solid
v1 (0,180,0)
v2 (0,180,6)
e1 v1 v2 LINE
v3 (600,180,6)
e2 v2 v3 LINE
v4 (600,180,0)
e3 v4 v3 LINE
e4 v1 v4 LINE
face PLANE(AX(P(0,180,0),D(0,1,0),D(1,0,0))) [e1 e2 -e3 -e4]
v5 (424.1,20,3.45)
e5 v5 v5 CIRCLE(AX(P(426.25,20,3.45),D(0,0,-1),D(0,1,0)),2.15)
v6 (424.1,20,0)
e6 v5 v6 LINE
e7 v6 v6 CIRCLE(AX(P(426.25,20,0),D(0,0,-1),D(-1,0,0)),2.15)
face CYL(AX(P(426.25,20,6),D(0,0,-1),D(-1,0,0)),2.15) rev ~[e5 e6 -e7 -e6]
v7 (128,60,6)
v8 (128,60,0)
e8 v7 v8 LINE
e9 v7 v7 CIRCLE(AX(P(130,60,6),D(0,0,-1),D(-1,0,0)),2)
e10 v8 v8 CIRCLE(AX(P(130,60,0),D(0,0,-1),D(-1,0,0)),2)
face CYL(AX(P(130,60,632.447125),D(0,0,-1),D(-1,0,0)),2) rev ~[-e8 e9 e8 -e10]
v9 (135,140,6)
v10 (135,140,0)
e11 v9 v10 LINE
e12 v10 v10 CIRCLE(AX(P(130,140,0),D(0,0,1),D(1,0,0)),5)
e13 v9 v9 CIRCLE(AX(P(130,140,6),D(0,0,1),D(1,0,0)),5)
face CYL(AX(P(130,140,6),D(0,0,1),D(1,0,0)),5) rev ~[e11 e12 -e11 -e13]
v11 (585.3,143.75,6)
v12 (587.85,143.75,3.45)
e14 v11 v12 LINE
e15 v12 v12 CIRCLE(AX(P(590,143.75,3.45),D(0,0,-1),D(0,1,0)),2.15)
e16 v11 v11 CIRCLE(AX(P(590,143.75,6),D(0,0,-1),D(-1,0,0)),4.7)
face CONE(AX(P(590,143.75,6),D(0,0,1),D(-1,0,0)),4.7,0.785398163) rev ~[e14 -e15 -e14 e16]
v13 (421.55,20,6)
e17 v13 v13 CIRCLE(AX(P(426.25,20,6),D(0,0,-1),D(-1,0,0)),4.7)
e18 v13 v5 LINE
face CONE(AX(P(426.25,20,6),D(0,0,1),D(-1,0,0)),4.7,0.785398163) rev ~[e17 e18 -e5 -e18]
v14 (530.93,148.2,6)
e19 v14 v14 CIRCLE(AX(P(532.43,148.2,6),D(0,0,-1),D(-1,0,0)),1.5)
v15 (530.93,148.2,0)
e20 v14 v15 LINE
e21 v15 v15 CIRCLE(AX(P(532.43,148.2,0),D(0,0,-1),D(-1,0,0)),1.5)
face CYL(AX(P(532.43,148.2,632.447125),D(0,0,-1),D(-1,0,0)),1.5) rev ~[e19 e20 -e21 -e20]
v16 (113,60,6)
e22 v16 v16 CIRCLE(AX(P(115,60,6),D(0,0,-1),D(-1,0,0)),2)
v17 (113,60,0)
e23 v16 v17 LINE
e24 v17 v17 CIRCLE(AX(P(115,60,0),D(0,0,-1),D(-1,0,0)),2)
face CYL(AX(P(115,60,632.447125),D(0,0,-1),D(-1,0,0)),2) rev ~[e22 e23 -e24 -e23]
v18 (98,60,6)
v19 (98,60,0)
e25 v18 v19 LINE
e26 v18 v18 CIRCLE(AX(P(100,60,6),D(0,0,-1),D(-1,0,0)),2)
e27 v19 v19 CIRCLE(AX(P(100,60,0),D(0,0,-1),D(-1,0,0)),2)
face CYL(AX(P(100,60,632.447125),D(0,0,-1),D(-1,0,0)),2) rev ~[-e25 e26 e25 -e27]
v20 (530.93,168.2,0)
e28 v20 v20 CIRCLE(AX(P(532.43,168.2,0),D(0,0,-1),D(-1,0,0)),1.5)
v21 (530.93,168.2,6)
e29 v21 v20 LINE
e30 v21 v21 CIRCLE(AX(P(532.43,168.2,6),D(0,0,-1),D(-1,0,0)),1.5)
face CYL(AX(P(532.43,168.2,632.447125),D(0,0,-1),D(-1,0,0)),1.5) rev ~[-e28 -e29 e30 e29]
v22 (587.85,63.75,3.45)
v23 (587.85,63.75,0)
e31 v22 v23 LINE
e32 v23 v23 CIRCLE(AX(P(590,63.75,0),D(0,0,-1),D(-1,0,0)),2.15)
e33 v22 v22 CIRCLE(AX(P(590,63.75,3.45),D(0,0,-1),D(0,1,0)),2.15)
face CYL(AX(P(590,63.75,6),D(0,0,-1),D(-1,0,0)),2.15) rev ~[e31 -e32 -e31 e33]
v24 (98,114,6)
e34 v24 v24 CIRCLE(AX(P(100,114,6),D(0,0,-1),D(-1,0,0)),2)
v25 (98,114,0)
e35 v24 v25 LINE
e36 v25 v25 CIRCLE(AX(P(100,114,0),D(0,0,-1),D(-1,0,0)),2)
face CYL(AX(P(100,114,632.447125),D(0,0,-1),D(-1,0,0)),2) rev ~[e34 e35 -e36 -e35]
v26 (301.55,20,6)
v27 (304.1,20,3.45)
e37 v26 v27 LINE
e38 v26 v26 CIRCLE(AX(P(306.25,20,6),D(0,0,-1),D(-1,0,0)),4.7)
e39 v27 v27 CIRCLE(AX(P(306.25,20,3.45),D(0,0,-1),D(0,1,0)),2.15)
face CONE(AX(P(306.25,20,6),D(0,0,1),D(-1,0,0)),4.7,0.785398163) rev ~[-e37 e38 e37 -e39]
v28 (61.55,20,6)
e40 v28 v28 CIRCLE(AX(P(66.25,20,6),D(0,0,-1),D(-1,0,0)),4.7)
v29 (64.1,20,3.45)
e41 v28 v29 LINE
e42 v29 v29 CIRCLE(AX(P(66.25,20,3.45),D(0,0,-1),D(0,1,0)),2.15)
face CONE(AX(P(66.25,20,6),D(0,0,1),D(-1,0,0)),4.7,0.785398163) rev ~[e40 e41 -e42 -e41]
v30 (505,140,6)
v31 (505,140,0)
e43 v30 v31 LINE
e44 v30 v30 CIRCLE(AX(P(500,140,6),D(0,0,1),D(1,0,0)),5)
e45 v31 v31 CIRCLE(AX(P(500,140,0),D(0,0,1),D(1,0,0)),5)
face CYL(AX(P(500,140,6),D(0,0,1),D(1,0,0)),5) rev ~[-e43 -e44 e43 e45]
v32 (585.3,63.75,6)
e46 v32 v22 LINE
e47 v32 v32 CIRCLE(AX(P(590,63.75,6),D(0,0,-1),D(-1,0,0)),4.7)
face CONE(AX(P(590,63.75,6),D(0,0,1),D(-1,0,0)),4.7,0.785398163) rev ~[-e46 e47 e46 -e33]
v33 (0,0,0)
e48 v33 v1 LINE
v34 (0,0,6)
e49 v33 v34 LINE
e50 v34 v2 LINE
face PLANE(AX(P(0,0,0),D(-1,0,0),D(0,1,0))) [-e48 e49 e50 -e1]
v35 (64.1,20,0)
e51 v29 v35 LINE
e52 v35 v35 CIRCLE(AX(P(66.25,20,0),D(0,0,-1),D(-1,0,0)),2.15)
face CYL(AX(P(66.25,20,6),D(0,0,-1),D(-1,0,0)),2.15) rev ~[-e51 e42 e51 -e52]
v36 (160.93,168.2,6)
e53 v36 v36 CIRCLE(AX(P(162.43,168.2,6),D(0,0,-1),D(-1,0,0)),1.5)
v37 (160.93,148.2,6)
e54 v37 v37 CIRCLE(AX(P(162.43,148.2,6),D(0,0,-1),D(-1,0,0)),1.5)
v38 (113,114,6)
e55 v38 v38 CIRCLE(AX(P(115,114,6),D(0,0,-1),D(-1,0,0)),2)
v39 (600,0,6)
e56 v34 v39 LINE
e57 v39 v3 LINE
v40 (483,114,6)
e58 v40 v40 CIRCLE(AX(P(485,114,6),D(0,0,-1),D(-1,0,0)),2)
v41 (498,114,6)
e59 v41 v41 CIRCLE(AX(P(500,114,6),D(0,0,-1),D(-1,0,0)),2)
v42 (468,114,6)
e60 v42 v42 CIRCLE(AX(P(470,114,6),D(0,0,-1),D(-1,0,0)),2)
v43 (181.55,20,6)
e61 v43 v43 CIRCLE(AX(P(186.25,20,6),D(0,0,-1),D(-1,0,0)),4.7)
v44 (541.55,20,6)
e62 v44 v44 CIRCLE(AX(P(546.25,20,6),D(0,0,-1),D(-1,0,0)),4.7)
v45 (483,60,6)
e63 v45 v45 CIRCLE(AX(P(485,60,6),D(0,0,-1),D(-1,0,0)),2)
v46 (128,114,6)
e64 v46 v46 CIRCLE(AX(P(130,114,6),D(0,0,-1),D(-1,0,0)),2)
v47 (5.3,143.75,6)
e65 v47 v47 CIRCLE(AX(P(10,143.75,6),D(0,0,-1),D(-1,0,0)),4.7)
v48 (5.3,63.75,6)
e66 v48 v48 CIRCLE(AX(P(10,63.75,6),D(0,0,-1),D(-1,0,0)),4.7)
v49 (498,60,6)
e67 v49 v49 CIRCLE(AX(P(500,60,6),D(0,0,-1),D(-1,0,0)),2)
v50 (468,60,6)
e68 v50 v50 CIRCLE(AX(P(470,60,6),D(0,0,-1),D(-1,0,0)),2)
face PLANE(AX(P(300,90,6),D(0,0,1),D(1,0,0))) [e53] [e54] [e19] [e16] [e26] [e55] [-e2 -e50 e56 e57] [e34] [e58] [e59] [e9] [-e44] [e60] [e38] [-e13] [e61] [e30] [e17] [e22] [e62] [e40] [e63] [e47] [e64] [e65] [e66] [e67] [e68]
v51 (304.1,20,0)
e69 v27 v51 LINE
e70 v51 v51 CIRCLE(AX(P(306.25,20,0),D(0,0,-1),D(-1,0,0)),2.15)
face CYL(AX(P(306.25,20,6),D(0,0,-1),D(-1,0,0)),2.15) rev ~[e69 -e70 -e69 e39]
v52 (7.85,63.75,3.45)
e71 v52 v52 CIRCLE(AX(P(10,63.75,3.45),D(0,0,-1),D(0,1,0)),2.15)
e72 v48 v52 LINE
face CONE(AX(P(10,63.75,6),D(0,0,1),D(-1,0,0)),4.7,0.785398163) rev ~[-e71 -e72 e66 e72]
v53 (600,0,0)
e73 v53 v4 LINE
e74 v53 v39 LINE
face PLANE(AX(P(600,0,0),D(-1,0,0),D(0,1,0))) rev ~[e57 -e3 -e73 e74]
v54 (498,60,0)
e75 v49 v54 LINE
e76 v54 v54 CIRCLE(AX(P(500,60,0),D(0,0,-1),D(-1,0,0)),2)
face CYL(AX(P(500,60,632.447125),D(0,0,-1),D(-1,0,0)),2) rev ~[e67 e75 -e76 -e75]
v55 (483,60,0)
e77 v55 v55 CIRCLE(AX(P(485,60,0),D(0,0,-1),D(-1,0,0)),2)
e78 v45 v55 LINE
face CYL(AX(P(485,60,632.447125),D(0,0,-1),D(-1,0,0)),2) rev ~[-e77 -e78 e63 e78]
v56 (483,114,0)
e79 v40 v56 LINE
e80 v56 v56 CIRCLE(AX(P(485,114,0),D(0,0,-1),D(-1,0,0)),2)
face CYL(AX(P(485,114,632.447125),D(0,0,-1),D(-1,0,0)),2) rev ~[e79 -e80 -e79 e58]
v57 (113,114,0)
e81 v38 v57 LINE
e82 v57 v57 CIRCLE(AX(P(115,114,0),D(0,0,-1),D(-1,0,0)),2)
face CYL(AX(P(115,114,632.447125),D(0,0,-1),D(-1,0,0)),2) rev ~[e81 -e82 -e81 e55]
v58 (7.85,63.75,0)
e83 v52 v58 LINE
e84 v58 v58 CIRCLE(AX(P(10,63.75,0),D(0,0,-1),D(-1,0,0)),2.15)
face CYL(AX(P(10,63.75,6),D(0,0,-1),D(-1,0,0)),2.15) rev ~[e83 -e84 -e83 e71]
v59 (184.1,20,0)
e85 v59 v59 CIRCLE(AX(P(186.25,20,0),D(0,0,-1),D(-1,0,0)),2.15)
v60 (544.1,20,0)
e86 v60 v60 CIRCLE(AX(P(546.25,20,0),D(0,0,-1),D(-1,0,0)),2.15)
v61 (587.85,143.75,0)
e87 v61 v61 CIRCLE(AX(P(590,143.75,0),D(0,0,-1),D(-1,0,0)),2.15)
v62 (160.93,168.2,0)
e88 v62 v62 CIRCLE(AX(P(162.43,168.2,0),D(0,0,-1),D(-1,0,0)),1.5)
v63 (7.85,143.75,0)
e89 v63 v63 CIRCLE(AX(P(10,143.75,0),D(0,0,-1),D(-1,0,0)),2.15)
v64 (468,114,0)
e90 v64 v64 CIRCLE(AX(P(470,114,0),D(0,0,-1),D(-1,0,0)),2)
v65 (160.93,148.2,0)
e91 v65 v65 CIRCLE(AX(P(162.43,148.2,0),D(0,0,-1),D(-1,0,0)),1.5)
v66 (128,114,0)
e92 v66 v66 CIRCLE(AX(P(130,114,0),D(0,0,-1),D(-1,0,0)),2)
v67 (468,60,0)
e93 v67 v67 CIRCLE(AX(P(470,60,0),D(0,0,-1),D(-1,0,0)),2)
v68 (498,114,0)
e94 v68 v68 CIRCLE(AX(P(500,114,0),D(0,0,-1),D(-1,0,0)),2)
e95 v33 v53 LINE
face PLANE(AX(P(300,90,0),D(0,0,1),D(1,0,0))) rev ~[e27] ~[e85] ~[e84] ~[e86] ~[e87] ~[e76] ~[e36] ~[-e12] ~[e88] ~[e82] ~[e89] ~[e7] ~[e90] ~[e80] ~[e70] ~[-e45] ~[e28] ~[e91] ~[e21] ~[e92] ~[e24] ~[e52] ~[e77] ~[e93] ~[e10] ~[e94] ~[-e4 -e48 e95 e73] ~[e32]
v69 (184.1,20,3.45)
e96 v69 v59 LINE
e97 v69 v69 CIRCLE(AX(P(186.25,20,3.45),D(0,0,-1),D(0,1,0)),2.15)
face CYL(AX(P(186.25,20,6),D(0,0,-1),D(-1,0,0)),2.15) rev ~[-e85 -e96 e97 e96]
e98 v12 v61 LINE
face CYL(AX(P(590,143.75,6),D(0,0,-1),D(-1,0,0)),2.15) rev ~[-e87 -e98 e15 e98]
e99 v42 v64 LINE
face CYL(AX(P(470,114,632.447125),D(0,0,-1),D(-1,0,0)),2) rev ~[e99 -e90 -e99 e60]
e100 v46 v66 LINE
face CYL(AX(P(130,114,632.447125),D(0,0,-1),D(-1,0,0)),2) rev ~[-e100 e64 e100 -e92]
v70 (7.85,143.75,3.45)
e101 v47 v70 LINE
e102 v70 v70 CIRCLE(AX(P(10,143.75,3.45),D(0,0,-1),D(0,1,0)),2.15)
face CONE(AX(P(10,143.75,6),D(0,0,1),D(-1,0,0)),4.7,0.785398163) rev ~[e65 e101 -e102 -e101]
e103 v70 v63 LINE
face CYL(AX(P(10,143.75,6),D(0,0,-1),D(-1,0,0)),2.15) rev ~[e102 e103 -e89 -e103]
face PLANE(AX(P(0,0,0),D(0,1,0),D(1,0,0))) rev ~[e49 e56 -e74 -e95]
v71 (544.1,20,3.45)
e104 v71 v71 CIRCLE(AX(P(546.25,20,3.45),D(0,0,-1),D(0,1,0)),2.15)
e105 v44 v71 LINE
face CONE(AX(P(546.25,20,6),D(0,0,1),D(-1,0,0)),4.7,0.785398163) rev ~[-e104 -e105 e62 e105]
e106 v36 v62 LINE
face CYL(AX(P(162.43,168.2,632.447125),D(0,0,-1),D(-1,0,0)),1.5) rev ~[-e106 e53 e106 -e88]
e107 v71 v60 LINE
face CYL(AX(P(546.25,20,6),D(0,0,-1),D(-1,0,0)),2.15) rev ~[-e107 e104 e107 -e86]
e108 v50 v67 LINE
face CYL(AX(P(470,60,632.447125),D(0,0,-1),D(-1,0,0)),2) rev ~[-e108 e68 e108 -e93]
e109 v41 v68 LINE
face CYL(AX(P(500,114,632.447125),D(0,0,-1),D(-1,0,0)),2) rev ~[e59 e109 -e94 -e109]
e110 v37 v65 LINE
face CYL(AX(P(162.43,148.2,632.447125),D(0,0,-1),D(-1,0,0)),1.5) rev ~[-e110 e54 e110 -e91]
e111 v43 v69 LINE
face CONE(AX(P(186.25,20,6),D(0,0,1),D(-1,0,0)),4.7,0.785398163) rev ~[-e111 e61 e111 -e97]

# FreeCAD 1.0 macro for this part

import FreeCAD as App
import Part
import Sketcher
Q = App.Units.Quantity

doc = App.newDocument("Part")
body = doc.addObject("PartDesign::Body", "Body")

# Sketch on XY plane
sketch1 = body.newObject("Sketcher::SketchObject", "Sketch")
sketch1.AttachmentSupport = (doc.getObject("XY_Plane"), [""])
sketch1.MapMode = "FlatFace"
sketch1.addGeometry([
    Part.LineSegment(App.Vector(0, 180, 0), App.Vector(0, 0, 0)),
    Part.LineSegment(App.Vector(0, 0, 0), App.Vector(600, 0, 0)),
    Part.LineSegment(App.Vector(600, 0, 0), App.Vector(600, 180, 0)),
    Part.LineSegment(App.Vector(600, 180, 0), App.Vector(0, 180, 0)),
], False)
sketch1.addConstraint([
    Sketcher.Constraint("Coincident", 0, 2, 1, 1),
    Sketcher.Constraint("Coincident", 1, 2, 2, 1),
    Sketcher.Constraint("Coincident", 2, 2, 3, 1),
    Sketcher.Constraint("Coincident", 3, 2, 0, 1),
    Sketcher.Constraint("Vertical", 0),
    Sketcher.Constraint("Horizontal", 1),
    Sketcher.Constraint("Vertical", 2),
    Sketcher.Constraint("Horizontal", 3),
    Sketcher.Constraint("Coincident", 0, 2, -1, 1),
    Sketcher.Constraint("DistanceX", 1, 1, 1, 2, Q("600 mm")),
    Sketcher.Constraint("DistanceY", 0, 2, 0, 1, Q("180 mm")),
])
pad1 = body.newObject("PartDesign::Pad", "Pad")
pad1.Profile = sketch1
pad1.Length = 6

# Sketch on XY plane
sketch2 = body.newObject("Sketcher::SketchObject", "Sketch001")
sketch2.AttachmentSupport = (doc.getObject("XY_Plane"), [""])
sketch2.MapMode = "FlatFace"
sketch2.AttachmentOffset = App.Placement(App.Vector(0, 0, 6), App.Rotation())
sketch2.addGeometry([
    Part.Circle(App.Vector(546.25, 20, 0), App.Vector(0, 0, 1), 2.15),  # 0
    Part.Circle(App.Vector(590, 63.75, 0), App.Vector(0, 0, 1), 2.15),  # 1
    Part.Circle(App.Vector(426.25, 20, 0), App.Vector(0, 0, 1), 2.15),  # 2
    Part.Circle(App.Vector(306.25, 20, 0), App.Vector(0, 0, 1), 2.15),  # 3
    Part.Circle(App.Vector(186.25, 20, 0), App.Vector(0, 0, 1), 2.15),  # 4
    Part.Circle(App.Vector(66.25, 20, 0), App.Vector(0, 0, 1), 2.15),  # 5
    Part.Circle(App.Vector(10, 63.75, 0), App.Vector(0, 0, 1), 2.15),  # 6
    Part.Circle(App.Vector(590, 143.75, 0), App.Vector(0, 0, 1), 2.15),  # 7
    Part.Circle(App.Vector(10, 143.75, 0), App.Vector(0, 0, 1), 2.15),  # 8
], False)
sketch2.addConstraint([
    Sketcher.Constraint("Equal", 0, 1),
    Sketcher.Constraint("Equal", 1, 2),
    Sketcher.Constraint("Equal", 2, 3),
    Sketcher.Constraint("Equal", 3, 4),
    Sketcher.Constraint("Equal", 4, 5),
    Sketcher.Constraint("Equal", 5, 6),
    Sketcher.Constraint("Equal", 6, 7),
    Sketcher.Constraint("Equal", 7, 8),
    Sketcher.Constraint("Horizontal", 0, 3, 2, 3),
    Sketcher.Constraint("Horizontal", 2, 3, 3, 3),
    Sketcher.Constraint("Horizontal", 3, 3, 4, 3),
    Sketcher.Constraint("Horizontal", 4, 3, 5, 3),
    Sketcher.Constraint("Horizontal", 1, 3, 6, 3),
    Sketcher.Constraint("Horizontal", 7, 3, 8, 3),
    Sketcher.Constraint("Vertical", 1, 3, 7, 3),
    Sketcher.Constraint("Vertical", 6, 3, 8, 3),
    Sketcher.Constraint("Diameter", 0, Q("4.3 mm")),
    Sketcher.Constraint("DistanceY", -1, 1, 0, 3, Q("20 mm")),
    Sketcher.Constraint("DistanceX", -1, 1, 1, 3, Q("590 mm")),
    Sketcher.Constraint("DistanceX", -1, 1, 6, 3, Q("10 mm")),
    Sketcher.Constraint("DistanceX", 2, 3, 0, 3, Q("120 mm")),
    Sketcher.Constraint("DistanceX", 3, 3, 2, 3, Q("120 mm")),
    Sketcher.Constraint("DistanceX", 4, 3, 3, 3, Q("120 mm")),
    Sketcher.Constraint("DistanceX", 5, 3, 4, 3, Q("120 mm")),
    Sketcher.Constraint("DistanceY", 1, 3, 7, 3, Q("80 mm")),
    Sketcher.Constraint("DistanceX", -1, 1, 0, 3, Q("546.25 mm")),
    Sketcher.Constraint("DistanceY", -1, 1, 1, 3, Q("63.75 mm")),
])
doc.recompute()
hole = body.newObject("PartDesign::Hole", "Hole")
hole.Profile = sketch2
hole.ThreadType = "None"
hole.Diameter = 4.3
hole.DepthType = "ThroughAll"
hole.HoleCutType = "Countersink"
hole.HoleCutDiameter = 9.4
hole.HoleCutCountersinkAngle = 90

# Sketch on XY plane
sketch3 = body.newObject("Sketcher::SketchObject", "Sketch002")
sketch3.AttachmentSupport = (doc.getObject("XY_Plane"), [""])
sketch3.MapMode = "FlatFace"
sketch3.AttachmentOffset = App.Placement(App.Vector(0, 0, 6), App.Rotation())
sketch3.addGeometry([
    Part.Circle(App.Vector(500, 60, 0), App.Vector(0, 0, 1), 2),  # 0
    Part.Circle(App.Vector(485, 60, 0), App.Vector(0, 0, 1), 2),  # 1
    Part.Circle(App.Vector(470, 60, 0), App.Vector(0, 0, 1), 2),  # 2
    Part.Circle(App.Vector(485, 114, 0), App.Vector(0, 0, 1), 2),  # 3
    Part.Circle(App.Vector(470, 114, 0), App.Vector(0, 0, 1), 2),  # 4
    Part.Circle(App.Vector(500, 114, 0), App.Vector(0, 0, 1), 2),  # 5
    Part.Circle(App.Vector(130, 114, 0), App.Vector(0, 0, 1), 2),  # 6
    Part.Circle(App.Vector(115, 114, 0), App.Vector(0, 0, 1), 2),  # 7
    Part.Circle(App.Vector(100, 114, 0), App.Vector(0, 0, 1), 2),  # 8
    Part.Circle(App.Vector(130, 60, 0), App.Vector(0, 0, 1), 2),  # 9
    Part.Circle(App.Vector(115, 60, 0), App.Vector(0, 0, 1), 2),  # 10
    Part.Circle(App.Vector(100, 60, 0), App.Vector(0, 0, 1), 2),  # 11
], False)
sketch3.addConstraint([
    Sketcher.Constraint("Equal", 0, 1),
    Sketcher.Constraint("Equal", 1, 2),
    Sketcher.Constraint("Equal", 2, 3),
    Sketcher.Constraint("Equal", 3, 4),
    Sketcher.Constraint("Equal", 4, 5),
    Sketcher.Constraint("Equal", 5, 6),
    Sketcher.Constraint("Equal", 6, 7),
    Sketcher.Constraint("Equal", 7, 8),
    Sketcher.Constraint("Equal", 8, 9),
    Sketcher.Constraint("Equal", 9, 10),
    Sketcher.Constraint("Equal", 10, 11),
    Sketcher.Constraint("Horizontal", 0, 3, 1, 3),
    Sketcher.Constraint("Horizontal", 1, 3, 2, 3),
    Sketcher.Constraint("Horizontal", 3, 3, 4, 3),
    Sketcher.Constraint("Horizontal", 4, 3, 5, 3),
    Sketcher.Constraint("Horizontal", 5, 3, 6, 3),
    Sketcher.Constraint("Horizontal", 6, 3, 7, 3),
    Sketcher.Constraint("Horizontal", 7, 3, 8, 3),
    Sketcher.Constraint("Horizontal", 2, 3, 9, 3),
    Sketcher.Constraint("Horizontal", 9, 3, 10, 3),
    Sketcher.Constraint("Horizontal", 10, 3, 11, 3),
    Sketcher.Constraint("Vertical", 1, 3, 3, 3),
    Sketcher.Constraint("Vertical", 2, 3, 4, 3),
    Sketcher.Constraint("Vertical", 0, 3, 5, 3),
    Sketcher.Constraint("Vertical", 6, 3, 9, 3),
    Sketcher.Constraint("Vertical", 7, 3, 10, 3),
    Sketcher.Constraint("Vertical", 8, 3, 11, 3),
    Sketcher.Constraint("Diameter", 0, Q("4 mm")),
    Sketcher.Constraint("DistanceX", -1, 1, 0, 3, Q("500 mm")),
    Sketcher.Constraint("DistanceY", -1, 1, 0, 3, Q("60 mm")),
    Sketcher.Constraint("DistanceX", -1, 1, 1, 3, Q("485 mm")),
    Sketcher.Constraint("DistanceX", -1, 1, 2, 3, Q("470 mm")),
    Sketcher.Constraint("DistanceY", -1, 1, 3, 3, Q("114 mm")),
    Sketcher.Constraint("DistanceX", -1, 1, 6, 3, Q("130 mm")),
    Sketcher.Constraint("DistanceX", -1, 1, 7, 3, Q("115 mm")),
    Sketcher.Constraint("DistanceX", -1, 1, 8, 3, Q("100 mm")),
])
doc.recompute()
hole2 = body.newObject("PartDesign::Hole", "Hole001")
hole2.Profile = sketch3
hole2.ThreadType = "None"
hole2.Diameter = 4
hole2.DepthType = "ThroughAll"

# Sketch on XY plane
sketch4 = body.newObject("Sketcher::SketchObject", "Sketch003")
sketch4.AttachmentSupport = (doc.getObject("XY_Plane"), [""])
sketch4.MapMode = "FlatFace"
sketch4.AttachmentOffset = App.Placement(App.Vector(0, 0, 6), App.Rotation())
sketch4.addGeometry([
    Part.Circle(App.Vector(532.43, 148.2, 0), App.Vector(0, 0, 1), 1.5),
    Part.Circle(App.Vector(532.43, 168.2, 0), App.Vector(0, 0, 1), 1.5),
    Part.Circle(App.Vector(162.43, 148.2, 0), App.Vector(0, 0, 1), 1.5),
    Part.Circle(App.Vector(162.43, 168.2, 0), App.Vector(0, 0, 1), 1.5),
], False)
sketch4.addConstraint([
    Sketcher.Constraint("Equal", 0, 1),
    Sketcher.Constraint("Equal", 1, 2),
    Sketcher.Constraint("Equal", 2, 3),
    Sketcher.Constraint("Horizontal", 0, 3, 2, 3),
    Sketcher.Constraint("Horizontal", 1, 3, 3, 3),
    Sketcher.Constraint("Vertical", 0, 3, 1, 3),
    Sketcher.Constraint("Vertical", 2, 3, 3, 3),
    Sketcher.Constraint("Diameter", 0, Q("3 mm")),
    Sketcher.Constraint("DistanceY", 0, 3, 1, 3, Q("20 mm")),
    Sketcher.Constraint("DistanceX", 2, 3, 0, 3, Q("370 mm")),
    Sketcher.Constraint("DistanceY", -1, 1, 0, 3, Q("148.2 mm")),
    Sketcher.Constraint("DistanceX", -1, 1, 0, 3, Q("532.43 mm")),
])
doc.recompute()
hole3 = body.newObject("PartDesign::Hole", "Hole002")
hole3.Profile = sketch4
hole3.ThreadType = "None"
hole3.Diameter = 3
hole3.DepthType = "ThroughAll"

# Sketch on XY plane
sketch5 = body.newObject("Sketcher::SketchObject", "Sketch004")
sketch5.AttachmentSupport = (doc.getObject("XY_Plane"), [""])
sketch5.MapMode = "FlatFace"
sketch5.AttachmentOffset = App.Placement(App.Vector(0, 0, 6), App.Rotation())
sketch5.addGeometry([
    Part.Circle(App.Vector(500, 140, 0), App.Vector(0, 0, 1), 5),
    Part.Circle(App.Vector(130, 140, 0), App.Vector(0, 0, 1), 5),
], False)
sketch5.addConstraint([
    Sketcher.Constraint("Equal", 0, 1),
    Sketcher.Constraint("Horizontal", 0, 3, 1, 3),
    Sketcher.Constraint("Diameter", 0, Q("10 mm")),
    Sketcher.Constraint("DistanceX", -1, 1, 0, 3, Q("500 mm")),
    Sketcher.Constraint("DistanceY", -1, 1, 0, 3, Q("140 mm")),
    Sketcher.Constraint("DistanceX", -1, 1, 1, 3, Q("130 mm")),
])
pocket1 = body.newObject("PartDesign::Pocket", "Pocket")
pocket1.Profile = sketch5
pocket1.Length = 10

doc.recompute()
